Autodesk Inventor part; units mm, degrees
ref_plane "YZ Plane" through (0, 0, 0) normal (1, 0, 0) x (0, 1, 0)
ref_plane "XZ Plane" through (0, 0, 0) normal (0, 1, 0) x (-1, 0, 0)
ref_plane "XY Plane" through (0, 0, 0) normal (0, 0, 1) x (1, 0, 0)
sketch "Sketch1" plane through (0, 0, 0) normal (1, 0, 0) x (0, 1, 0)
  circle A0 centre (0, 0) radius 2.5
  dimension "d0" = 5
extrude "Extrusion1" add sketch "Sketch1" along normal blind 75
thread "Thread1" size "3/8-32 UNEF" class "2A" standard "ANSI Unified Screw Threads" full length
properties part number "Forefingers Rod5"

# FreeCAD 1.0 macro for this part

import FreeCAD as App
import Part
import Sketcher

V = App.Vector

doc = App.newDocument("Part")
body = doc.addObject("PartDesign::Body", "Body")

sketch1 = body.newObject("Sketcher::SketchObject", "Sketch")
sketch1.AttachmentSupport = (doc.getObject("YZ_Plane"), [""])
sketch1.MapMode = "FlatFace"
sketch1.addGeometry(Part.Circle(V(0, 0, 0), V(0, 0, 1), 2.5), False)
sketch1.addConstraint([
    Sketcher.Constraint("Coincident", 0, 3, -1, 1),
    Sketcher.Constraint("Diameter", 0, 5.0),
])
pad1 = body.newObject("PartDesign::Pad", "Pad")
pad1.Profile = sketch1
pad1.Length = 75

doc.recompute()
